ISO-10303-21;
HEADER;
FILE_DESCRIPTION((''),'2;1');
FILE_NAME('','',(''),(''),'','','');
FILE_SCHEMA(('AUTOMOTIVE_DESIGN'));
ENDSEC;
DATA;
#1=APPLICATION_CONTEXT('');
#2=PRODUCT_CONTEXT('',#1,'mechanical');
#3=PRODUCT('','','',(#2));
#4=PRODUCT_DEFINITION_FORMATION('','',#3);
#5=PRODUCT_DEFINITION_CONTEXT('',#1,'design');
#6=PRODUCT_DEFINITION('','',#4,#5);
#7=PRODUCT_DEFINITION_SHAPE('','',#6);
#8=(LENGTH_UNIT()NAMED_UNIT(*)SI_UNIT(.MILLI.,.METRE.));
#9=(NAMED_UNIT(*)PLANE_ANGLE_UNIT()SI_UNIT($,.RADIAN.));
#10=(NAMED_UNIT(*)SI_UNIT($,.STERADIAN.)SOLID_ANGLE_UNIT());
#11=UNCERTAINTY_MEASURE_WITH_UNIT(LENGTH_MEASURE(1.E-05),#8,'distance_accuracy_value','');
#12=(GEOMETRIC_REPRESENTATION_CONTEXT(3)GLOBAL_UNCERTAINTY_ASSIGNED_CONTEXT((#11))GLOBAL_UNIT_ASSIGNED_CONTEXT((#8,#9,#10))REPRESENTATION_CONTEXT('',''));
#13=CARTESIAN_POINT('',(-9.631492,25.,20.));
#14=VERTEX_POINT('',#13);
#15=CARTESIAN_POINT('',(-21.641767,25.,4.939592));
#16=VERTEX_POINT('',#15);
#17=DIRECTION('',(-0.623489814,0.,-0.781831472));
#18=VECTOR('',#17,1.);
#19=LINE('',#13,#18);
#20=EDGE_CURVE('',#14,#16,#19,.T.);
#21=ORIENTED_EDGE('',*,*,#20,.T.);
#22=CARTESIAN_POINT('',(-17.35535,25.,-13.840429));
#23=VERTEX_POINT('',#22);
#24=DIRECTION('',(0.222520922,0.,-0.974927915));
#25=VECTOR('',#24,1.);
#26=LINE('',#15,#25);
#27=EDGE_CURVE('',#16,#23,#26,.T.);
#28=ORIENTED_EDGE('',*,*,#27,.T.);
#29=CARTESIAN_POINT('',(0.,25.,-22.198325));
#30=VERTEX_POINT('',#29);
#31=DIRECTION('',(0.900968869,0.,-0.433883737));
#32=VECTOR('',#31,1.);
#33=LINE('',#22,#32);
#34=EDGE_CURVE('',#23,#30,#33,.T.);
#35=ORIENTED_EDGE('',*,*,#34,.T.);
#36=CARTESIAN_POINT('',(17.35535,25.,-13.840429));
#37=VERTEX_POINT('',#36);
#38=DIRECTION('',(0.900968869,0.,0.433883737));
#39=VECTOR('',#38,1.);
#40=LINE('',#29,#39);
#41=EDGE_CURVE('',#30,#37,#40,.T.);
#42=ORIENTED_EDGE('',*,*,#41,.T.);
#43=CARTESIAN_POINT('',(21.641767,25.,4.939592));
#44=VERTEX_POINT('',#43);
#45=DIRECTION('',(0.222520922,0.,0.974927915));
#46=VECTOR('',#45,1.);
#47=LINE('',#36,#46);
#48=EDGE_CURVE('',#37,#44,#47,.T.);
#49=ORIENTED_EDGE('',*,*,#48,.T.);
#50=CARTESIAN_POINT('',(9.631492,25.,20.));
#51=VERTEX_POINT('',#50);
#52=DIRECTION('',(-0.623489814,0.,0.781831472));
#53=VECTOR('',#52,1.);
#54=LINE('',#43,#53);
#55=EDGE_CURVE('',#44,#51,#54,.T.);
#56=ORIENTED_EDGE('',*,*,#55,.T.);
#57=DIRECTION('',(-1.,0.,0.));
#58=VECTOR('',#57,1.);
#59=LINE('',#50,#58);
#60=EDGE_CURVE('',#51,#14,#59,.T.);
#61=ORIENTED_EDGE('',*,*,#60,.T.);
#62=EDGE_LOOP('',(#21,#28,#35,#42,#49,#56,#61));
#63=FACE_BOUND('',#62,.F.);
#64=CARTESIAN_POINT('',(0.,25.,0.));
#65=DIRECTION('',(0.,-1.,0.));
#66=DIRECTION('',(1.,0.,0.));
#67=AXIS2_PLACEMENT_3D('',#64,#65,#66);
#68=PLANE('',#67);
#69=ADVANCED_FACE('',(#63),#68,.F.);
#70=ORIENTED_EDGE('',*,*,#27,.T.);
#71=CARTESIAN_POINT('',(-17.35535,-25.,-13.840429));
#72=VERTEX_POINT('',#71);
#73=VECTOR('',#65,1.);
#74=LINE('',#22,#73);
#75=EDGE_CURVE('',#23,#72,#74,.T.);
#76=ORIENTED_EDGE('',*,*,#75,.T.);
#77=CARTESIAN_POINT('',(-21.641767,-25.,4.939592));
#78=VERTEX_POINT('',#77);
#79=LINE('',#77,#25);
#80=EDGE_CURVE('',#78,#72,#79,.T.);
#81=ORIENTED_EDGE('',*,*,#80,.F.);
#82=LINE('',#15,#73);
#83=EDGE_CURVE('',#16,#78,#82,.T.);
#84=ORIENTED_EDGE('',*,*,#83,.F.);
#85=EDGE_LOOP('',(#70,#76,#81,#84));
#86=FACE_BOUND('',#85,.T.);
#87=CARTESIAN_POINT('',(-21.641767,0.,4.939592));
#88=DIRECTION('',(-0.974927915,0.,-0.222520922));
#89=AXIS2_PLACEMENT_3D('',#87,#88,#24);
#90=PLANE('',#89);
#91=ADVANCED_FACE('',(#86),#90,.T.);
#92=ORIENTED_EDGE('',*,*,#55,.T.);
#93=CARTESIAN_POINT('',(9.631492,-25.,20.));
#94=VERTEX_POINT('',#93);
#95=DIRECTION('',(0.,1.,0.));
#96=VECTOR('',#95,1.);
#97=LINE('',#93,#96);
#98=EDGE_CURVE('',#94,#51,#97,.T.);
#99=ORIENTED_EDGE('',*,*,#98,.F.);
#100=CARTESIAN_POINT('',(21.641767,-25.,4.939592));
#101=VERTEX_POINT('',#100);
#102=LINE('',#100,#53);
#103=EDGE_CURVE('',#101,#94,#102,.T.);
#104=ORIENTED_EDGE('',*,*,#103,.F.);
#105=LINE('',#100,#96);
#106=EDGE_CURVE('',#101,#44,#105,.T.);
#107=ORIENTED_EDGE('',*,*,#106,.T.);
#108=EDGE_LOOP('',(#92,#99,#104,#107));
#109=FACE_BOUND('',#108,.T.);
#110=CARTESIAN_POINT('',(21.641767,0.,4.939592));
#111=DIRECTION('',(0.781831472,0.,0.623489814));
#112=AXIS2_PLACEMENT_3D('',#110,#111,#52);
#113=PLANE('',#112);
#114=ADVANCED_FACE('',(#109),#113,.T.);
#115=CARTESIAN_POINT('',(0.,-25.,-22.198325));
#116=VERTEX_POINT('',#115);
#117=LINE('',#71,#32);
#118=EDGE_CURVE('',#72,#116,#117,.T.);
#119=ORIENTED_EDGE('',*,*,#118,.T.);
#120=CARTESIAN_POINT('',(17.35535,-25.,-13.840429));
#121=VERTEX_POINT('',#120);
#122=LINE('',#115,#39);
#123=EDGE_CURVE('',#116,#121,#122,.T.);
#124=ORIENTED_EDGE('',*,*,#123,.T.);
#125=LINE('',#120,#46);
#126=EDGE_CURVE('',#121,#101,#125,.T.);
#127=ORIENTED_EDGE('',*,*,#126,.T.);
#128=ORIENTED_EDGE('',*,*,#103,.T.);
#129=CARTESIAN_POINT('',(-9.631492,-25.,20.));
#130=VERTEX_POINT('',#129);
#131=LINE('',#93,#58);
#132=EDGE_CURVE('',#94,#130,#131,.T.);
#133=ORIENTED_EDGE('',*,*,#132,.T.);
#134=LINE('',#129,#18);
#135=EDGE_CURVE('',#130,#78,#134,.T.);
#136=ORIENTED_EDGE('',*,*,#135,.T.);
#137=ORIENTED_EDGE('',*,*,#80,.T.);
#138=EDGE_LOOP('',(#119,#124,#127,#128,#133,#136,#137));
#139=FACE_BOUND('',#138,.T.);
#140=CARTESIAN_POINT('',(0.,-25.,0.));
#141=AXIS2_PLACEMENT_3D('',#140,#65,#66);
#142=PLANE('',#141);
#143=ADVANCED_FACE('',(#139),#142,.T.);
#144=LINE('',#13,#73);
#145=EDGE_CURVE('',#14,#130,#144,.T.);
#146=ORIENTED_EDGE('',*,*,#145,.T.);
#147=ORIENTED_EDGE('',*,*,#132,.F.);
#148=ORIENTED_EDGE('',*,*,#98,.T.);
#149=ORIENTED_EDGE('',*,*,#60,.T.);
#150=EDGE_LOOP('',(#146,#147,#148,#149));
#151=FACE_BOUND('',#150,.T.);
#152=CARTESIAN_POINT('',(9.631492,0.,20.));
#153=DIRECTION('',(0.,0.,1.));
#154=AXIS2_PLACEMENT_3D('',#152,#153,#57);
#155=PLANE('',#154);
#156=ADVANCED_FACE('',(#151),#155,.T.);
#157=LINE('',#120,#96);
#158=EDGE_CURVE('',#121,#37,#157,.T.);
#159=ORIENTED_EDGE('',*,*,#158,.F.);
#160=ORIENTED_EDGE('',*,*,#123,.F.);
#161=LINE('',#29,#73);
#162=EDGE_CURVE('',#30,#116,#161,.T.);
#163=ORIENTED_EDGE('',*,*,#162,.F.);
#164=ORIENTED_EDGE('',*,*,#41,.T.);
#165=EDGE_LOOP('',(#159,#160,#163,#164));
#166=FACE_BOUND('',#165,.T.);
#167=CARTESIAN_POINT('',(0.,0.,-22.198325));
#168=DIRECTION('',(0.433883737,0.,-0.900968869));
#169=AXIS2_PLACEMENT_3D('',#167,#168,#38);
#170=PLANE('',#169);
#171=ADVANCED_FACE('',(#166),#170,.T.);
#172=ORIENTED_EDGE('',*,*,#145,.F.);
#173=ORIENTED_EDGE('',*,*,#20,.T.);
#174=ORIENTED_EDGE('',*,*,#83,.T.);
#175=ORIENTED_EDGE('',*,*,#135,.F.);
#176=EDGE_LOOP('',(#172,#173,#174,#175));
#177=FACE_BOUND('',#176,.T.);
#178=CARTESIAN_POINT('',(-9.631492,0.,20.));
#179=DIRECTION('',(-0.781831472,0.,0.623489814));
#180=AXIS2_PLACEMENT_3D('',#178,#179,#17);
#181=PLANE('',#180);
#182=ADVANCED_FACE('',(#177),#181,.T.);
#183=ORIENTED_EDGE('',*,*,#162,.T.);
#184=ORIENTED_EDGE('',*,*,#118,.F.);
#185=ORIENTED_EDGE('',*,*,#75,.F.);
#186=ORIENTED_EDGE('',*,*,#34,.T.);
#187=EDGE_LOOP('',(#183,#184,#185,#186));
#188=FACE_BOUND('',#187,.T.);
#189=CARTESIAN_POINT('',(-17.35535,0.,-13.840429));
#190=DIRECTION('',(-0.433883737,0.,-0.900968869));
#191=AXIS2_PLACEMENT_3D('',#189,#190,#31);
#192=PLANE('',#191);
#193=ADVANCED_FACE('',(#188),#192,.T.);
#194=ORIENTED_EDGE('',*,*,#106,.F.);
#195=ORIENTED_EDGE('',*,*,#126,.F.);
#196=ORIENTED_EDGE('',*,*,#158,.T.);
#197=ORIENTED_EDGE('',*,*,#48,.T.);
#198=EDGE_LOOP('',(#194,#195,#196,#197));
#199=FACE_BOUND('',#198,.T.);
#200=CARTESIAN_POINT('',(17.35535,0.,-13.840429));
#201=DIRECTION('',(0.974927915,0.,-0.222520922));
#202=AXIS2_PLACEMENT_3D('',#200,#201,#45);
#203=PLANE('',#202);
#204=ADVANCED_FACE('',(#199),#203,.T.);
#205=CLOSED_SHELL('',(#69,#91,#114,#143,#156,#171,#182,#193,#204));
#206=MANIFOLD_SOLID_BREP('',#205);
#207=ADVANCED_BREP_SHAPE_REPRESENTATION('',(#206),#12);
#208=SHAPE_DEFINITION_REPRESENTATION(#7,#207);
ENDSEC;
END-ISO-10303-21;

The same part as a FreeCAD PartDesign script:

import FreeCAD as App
import Part
import Sketcher

V = App.Vector
Q = App.Units.Quantity


def add_polygon(sketch, points):
    """Adds a closed chain of lines whose ends are joined by coincident constraints."""
    first, n = sketch.GeometryCount, len(points)
    for a, b in zip(points, points[1:] + points[:1]):
        sketch.addGeometry(Part.LineSegment(App.Vector(*a, 0), App.Vector(*b, 0)), False)
    for i in range(n):
        sketch.addConstraint(Sketcher.Constraint("Coincident", first + i, 2, first + (i + 1) % n, 1))

doc = App.newDocument("Part")
params = doc.addObject("Spreadsheet::Sheet", "Params")
for row, (alias, value) in enumerate([
    ("pad1_length", "50 mm"),
], start=1):
    params.set(f"A{row}", alias)
    params.set(f"B{row}", "=" + value)
    params.setAlias(f"B{row}", alias)

body = doc.addObject("PartDesign::Body", "Body")

# Sketch on XZ plane
sketch1 = body.newObject("Sketcher::SketchObject", "Sketch")
sketch1.AttachmentSupport = (doc.getObject("XZ_Plane"), [""])
sketch1.MapMode = "FlatFace"
add_polygon(sketch1, [(9.631492, 20), (-9.631492, 20), (-21.641767, 4.939592), (-17.35535, -13.840429), (0, -22.198325), (17.35535, -13.840429), (21.641767, 4.939592)])  # lines 0-6
sketch1.addConstraint(Sketcher.Constraint("Horizontal", 0))
sketch1.addConstraint(Sketcher.Constraint("Symmetric", 2, 2, 4, 2, -2))
sketch1.addConstraint(Sketcher.Constraint("Symmetric", 1, 2, 5, 2, -2))
sketch1.addConstraint(Sketcher.Constraint("PointOnObject", 3, 2, -2))
sketch1.addConstraint(Sketcher.Constraint("Equal", 1, 2))
sketch1.addConstraint(Sketcher.Constraint("Equal", 2, 3))
sketch1.addConstraint(Sketcher.Constraint("Equal", 5, 6))
sketch1.addConstraint(Sketcher.Constraint("DistanceY", -1, 1, 0, 2, Q("20 mm")))
sketch1.addConstraint(Sketcher.Constraint("DistanceX", 2, 2, 4, 2, Q("34.7107 mm")))
sketch1.addConstraint(Sketcher.Constraint("DistanceX", 0, 2, 0, 1, Q("19.262984 mm")))
sketch1.addConstraint(Sketcher.Constraint("DistanceY", 2, 2, -1, 1, Q("13.840429 mm")))
sketch1.addConstraint(Sketcher.Constraint("DistanceY", 2, 2, 1, 2, Q("18.780021 mm")))
pad1 = body.newObject("PartDesign::Pad", "Pad")
pad1.Profile = sketch1
pad1.setExpression("Length", "Params.pad1_length")
pad1.Midplane = True

doc.recompute()
